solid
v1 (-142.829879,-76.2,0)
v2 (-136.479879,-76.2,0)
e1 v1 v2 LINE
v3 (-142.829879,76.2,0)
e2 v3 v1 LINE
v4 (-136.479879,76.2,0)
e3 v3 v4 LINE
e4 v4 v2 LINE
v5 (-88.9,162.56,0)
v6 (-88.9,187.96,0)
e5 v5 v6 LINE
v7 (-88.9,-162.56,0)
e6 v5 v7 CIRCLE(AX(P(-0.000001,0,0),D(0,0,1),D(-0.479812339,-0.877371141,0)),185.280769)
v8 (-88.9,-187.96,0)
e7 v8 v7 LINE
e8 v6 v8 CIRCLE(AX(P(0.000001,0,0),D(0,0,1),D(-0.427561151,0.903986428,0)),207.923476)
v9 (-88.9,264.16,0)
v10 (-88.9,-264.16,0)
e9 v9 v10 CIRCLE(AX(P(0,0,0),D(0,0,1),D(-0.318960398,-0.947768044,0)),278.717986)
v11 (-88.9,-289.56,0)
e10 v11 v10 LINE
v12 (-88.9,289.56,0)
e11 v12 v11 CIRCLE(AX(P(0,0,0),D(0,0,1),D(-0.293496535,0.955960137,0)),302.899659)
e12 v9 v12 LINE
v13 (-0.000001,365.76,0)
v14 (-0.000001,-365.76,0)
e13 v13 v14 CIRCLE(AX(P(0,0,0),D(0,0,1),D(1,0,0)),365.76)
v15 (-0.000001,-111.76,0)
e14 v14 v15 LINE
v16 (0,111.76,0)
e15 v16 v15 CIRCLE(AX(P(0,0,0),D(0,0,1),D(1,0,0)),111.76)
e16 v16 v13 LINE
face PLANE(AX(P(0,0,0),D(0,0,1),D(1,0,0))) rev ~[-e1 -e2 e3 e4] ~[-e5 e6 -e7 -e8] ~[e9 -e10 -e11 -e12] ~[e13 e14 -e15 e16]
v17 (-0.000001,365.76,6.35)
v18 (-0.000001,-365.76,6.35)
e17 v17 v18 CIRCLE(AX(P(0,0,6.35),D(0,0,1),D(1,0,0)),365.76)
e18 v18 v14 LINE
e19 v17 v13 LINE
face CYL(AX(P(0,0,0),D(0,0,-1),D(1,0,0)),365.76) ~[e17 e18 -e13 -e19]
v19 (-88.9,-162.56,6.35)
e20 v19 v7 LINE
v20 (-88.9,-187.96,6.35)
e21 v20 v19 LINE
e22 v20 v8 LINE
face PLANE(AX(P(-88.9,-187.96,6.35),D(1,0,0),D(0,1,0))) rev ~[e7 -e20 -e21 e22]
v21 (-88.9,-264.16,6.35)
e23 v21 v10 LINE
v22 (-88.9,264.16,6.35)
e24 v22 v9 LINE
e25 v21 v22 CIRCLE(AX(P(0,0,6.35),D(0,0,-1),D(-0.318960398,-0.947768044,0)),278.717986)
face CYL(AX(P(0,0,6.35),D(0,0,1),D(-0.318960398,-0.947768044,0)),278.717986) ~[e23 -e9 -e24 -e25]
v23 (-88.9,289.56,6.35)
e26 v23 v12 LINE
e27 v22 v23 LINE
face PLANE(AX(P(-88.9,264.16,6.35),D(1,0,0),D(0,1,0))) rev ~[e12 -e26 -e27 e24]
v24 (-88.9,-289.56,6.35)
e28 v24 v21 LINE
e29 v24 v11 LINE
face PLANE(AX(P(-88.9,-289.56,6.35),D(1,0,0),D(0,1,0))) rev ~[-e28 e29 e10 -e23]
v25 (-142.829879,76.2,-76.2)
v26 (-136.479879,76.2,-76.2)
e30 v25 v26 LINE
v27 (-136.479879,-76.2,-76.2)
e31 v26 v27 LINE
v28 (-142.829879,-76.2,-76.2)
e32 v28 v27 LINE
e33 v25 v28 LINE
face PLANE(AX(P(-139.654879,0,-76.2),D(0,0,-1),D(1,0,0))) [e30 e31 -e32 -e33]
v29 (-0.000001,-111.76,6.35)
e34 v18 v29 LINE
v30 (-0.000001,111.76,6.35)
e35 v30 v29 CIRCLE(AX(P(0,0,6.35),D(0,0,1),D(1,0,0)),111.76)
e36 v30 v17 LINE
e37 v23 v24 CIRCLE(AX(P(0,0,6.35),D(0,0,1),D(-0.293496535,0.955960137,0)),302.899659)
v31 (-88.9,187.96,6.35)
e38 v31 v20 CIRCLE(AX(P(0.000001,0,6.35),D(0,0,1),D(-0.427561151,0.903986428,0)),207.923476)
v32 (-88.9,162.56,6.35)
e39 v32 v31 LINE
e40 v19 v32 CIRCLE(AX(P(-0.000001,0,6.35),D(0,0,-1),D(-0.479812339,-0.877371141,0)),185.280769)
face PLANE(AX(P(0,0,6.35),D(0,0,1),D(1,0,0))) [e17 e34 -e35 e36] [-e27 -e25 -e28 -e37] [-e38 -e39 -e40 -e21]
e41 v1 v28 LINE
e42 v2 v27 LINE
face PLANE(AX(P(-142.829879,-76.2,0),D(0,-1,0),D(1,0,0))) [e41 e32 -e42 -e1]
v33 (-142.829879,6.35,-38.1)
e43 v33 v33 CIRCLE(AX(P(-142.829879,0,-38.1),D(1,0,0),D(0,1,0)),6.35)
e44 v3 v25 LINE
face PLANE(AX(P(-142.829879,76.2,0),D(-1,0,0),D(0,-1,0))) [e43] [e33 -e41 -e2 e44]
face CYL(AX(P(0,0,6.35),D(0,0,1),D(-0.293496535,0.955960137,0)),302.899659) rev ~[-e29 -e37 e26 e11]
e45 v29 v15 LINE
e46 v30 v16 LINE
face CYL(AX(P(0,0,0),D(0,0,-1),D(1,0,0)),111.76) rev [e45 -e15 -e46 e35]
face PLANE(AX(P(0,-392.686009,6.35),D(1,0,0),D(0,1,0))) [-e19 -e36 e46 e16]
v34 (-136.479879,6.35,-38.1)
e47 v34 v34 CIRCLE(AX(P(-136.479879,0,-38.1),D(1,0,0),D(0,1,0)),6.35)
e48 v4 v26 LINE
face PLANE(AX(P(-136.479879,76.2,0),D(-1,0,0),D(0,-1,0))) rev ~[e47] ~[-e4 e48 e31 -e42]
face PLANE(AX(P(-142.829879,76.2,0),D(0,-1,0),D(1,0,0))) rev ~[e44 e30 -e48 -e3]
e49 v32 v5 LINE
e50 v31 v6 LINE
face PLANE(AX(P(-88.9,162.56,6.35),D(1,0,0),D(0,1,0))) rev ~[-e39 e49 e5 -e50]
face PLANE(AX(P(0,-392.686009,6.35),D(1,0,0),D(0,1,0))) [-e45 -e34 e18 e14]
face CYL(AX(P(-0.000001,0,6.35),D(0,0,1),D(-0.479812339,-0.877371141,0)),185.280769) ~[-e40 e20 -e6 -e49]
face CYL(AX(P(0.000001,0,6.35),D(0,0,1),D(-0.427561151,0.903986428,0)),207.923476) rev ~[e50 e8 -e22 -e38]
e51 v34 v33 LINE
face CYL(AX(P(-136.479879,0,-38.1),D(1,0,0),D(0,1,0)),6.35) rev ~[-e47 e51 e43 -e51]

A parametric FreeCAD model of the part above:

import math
import FreeCAD as App
import Part
import Sketcher

V = App.Vector
Q = App.Units.Quantity

doc = App.newDocument("Part")
body = doc.addObject("PartDesign::Body", "Body")

sketch1 = body.newObject("Sketcher::SketchObject", "Sketch")
sketch1.AttachmentSupport = (doc.getObject("XY_Plane"), [""])
sketch1.MapMode = "FlatFace"
sketch1.addGeometry(Part.Circle(V(0, 0, 0), V(0, 0, 1), 366), False)
sketch1.addGeometry(Part.Circle(V(0, 0, 0), V(0, 0, 1), 112), False)
sketch1.addConstraint(Sketcher.Constraint("Coincident", 0, 3, -1, 1))
sketch1.addConstraint(Sketcher.Constraint("Coincident", 1, 3, -1, 1))
sketch1.addConstraint(Sketcher.Constraint("Diameter", 0, Q("28.8 in")))
sketch1.addConstraint(Sketcher.Constraint("Diameter", 1, Q("8.8 in")))
pad1 = body.newObject("PartDesign::Pad", "Pad")
pad1.Profile = sketch1
pad1.Length = Q("0.25 in")

sketch2 = body.newObject("Sketcher::SketchObject", "Sketch001")
sketch2.AttachmentSupport = (doc.getObject("XY_Plane"), [""])
sketch2.MapMode = "FlatFace"
sketch2.AttachmentOffset = App.Placement(V(0, 0, 0.25 * 25.4), App.Rotation())
sketch2.addGeometry(Part.LineSegment(V(0, 395, 0), V(0, -393, 0)), False)
sketch2.addGeometry(Part.LineSegment(V(0, -393, 0), V(380, -393, 0)), False)
sketch2.addGeometry(Part.LineSegment(V(380, -393, 0), V(380, 395, 0)), False)
sketch2.addGeometry(Part.LineSegment(V(380, 395, 0), V(0, 395, 0)), False)
sketch2.addConstraint(Sketcher.Constraint("Coincident", 0, 2, 1, 1))
sketch2.addConstraint(Sketcher.Constraint("Coincident", 1, 2, 2, 1))
sketch2.addConstraint(Sketcher.Constraint("Coincident", 2, 2, 3, 1))
sketch2.addConstraint(Sketcher.Constraint("Coincident", 3, 2, 0, 1))
sketch2.addConstraint(Sketcher.Constraint("Vertical", 0))
sketch2.addConstraint(Sketcher.Constraint("Horizontal", 1))
sketch2.addConstraint(Sketcher.Constraint("Vertical", 2))
sketch2.addConstraint(Sketcher.Constraint("Horizontal", 3))
sketch2.addConstraint(Sketcher.Constraint("PointOnObject", 0, 2, -2))
sketch2.addConstraint(Sketcher.Constraint("DistanceX", 1, 1, 1, 2, 380.011261))
sketch2.addConstraint(Sketcher.Constraint("DistanceY", 0, 2, 0, 1, 787.612766))
sketch2.addConstraint(Sketcher.Constraint("DistanceY", 0, 2, -1, 1, 392.686009))
pocket1 = body.newObject("PartDesign::Pocket", "Pocket")
pocket1.Profile = sketch2
pocket1.Type = "ThroughAll"

sketch3 = body.newObject("Sketcher::SketchObject", "Sketch002")
sketch3.AttachmentSupport = (doc.getObject("XY_Plane"), [""])
sketch3.MapMode = "FlatFace"
sketch3.AttachmentOffset = App.Placement(V(0, 0, 0.25 * 25.4), App.Rotation())
sketch3.addGeometry(Part.ArcOfCircle(Part.Circle(V(0, 0, 0), V(0, 0, 1), 303), math.radians(107), math.radians(253)), False)
sketch3.addGeometry(Part.LineSegment(V(-89, -290, 0), V(-89, -264, 0)), False)
sketch3.addGeometry(Part.ArcOfCircle(Part.Circle(V(0, 0, 0), V(0, 0, 1), 279), math.radians(109), math.radians(251)), False)
sketch3.addGeometry(Part.LineSegment(V(-89, 264, 0), V(-89, 290, 0)), False)
sketch3.addGeometry(Part.ArcOfCircle(Part.Circle(V(0, 0, 0), V(0, 0, 1), 208), math.radians(115), math.radians(245)), False)
sketch3.addGeometry(Part.LineSegment(V(-89, -188, 0), V(-89, -163, 0)), False)
sketch3.addGeometry(Part.ArcOfCircle(Part.Circle(V(0, 0, 0), V(0, 0, 1), 185), math.radians(119), math.radians(241)), False)
sketch3.addGeometry(Part.LineSegment(V(-89, 163, 0), V(-89, 188, 0)), False)
sketch3.addConstraint(Sketcher.Constraint("Coincident", 0, 2, 1, 1))
sketch3.addConstraint(Sketcher.Constraint("Coincident", 1, 2, 2, 2))
sketch3.addConstraint(Sketcher.Constraint("Coincident", 2, 1, 3, 1))
sketch3.addConstraint(Sketcher.Constraint("Coincident", 3, 2, 0, 1))
sketch3.addConstraint(Sketcher.Constraint("Coincident", 4, 2, 5, 1))
sketch3.addConstraint(Sketcher.Constraint("Coincident", 5, 2, 6, 2))
sketch3.addConstraint(Sketcher.Constraint("Coincident", 6, 1, 7, 1))
sketch3.addConstraint(Sketcher.Constraint("Coincident", 7, 2, 4, 1))
sketch3.addConstraint(Sketcher.Constraint("Vertical", 1))
sketch3.addConstraint(Sketcher.Constraint("Vertical", 3))
sketch3.addConstraint(Sketcher.Constraint("Vertical", 5))
sketch3.addConstraint(Sketcher.Constraint("Vertical", 7))
sketch3.addConstraint(Sketcher.Constraint("Coincident", 0, 3, -1, 1))
sketch3.addConstraint(Sketcher.Constraint("Coincident", 2, 3, -1, 1))
sketch3.addConstraint(Sketcher.Constraint("Coincident", 4, 3, -1, 1))
sketch3.addConstraint(Sketcher.Constraint("Coincident", 6, 3, -1, 1))
sketch3.addConstraint(Sketcher.Constraint("Vertical", 1, 2, 2, 1))
sketch3.addConstraint(Sketcher.Constraint("Vertical", 3, 2, 4, 2))
sketch3.addConstraint(Sketcher.Constraint("Vertical", 5, 2, 6, 1))
sketch3.addConstraint(Sketcher.Constraint("Equal", 3, 5))
sketch3.addConstraint(Sketcher.Constraint("DistanceY", 1, 1, 1, 2, Q("1 in")))
sketch3.addConstraint(Sketcher.Constraint("DistanceY", 1, 2, 4, 2, Q("3 in")))
sketch3.addConstraint(Sketcher.Constraint("DistanceY", 0, 2, -1, 1, Q("11.4 in")))
sketch3.addConstraint(Sketcher.Constraint("DistanceX", 1, 2, -1, 1, Q("3.5 in")))
pocket2 = body.newObject("PartDesign::Pocket", "Pocket001")
pocket2.Profile = sketch3
pocket2.Type = "ThroughAll"

sketch4 = body.newObject("Sketcher::SketchObject", "Sketch003")
sketch4.AttachmentSupport = (doc.getObject("XY_Plane"), [""])
sketch4.MapMode = "FlatFace"
sketch4.addGeometry(Part.LineSegment(V(-143, -76, 0), V(-143, 76, 0)), False)
sketch4.addGeometry(Part.LineSegment(V(-143, 76, 0), V(-136, 76, 0)), False)
sketch4.addGeometry(Part.LineSegment(V(-136, 76, 0), V(-136, -76, 0)), False)
sketch4.addGeometry(Part.LineSegment(V(-136, -76, 0), V(-143, -76, 0)), False)
sketch4.addConstraint(Sketcher.Constraint("Coincident", 0, 2, 1, 1))
sketch4.addConstraint(Sketcher.Constraint("Coincident", 1, 2, 2, 1))
sketch4.addConstraint(Sketcher.Constraint("Coincident", 2, 2, 3, 1))
sketch4.addConstraint(Sketcher.Constraint("Coincident", 3, 2, 0, 1))
sketch4.addConstraint(Sketcher.Constraint("Vertical", 0))
sketch4.addConstraint(Sketcher.Constraint("Horizontal", 1))
sketch4.addConstraint(Sketcher.Constraint("Vertical", 2))
sketch4.addConstraint(Sketcher.Constraint("Horizontal", 3))
sketch4.addConstraint(Sketcher.Constraint("DistanceY", 0, 1, 0, 2, Q("6 in")))
sketch4.addConstraint(Sketcher.Constraint("DistanceY", -1, 1, 0, 2, Q("3 in")))
sketch4.addConstraint(Sketcher.Constraint("DistanceX", 1, 1, 1, 2, Q("0.25 in")))
sketch4.addConstraint(Sketcher.Constraint("DistanceX", 0, 2, -1, 1, 142.829879))
pad2 = body.newObject("PartDesign::Pad", "Pad001")
pad2.Profile = sketch4
pad2.Length = Q("3 in")
pad2.Reversed = True

sketch5 = body.newObject("Sketcher::SketchObject", "Sketch004")
sketch5.AttachmentSupport = (doc.getObject("YZ_Plane"), [""])
sketch5.MapMode = "FlatFace"
sketch5.AttachmentOffset = App.Placement(V(0, 0, -136.479879), App.Rotation())
sketch5.addGeometry(Part.Circle(V(0, -38, 0), V(0, 0, 1), 6), False)
sketch5.addConstraint(Sketcher.Constraint("PointOnObject", 0, 3, -2))
sketch5.addConstraint(Sketcher.Constraint("Diameter", 0, Q("0.5 in")))
sketch5.addConstraint(Sketcher.Constraint("DistanceY", 0, 3, -1, 1, Q("1.5 in")))
pocket3 = body.newObject("PartDesign::Pocket", "Pocket002")
pocket3.Profile = sketch5
pocket3.Type = "ThroughAll"

doc.recompute()
